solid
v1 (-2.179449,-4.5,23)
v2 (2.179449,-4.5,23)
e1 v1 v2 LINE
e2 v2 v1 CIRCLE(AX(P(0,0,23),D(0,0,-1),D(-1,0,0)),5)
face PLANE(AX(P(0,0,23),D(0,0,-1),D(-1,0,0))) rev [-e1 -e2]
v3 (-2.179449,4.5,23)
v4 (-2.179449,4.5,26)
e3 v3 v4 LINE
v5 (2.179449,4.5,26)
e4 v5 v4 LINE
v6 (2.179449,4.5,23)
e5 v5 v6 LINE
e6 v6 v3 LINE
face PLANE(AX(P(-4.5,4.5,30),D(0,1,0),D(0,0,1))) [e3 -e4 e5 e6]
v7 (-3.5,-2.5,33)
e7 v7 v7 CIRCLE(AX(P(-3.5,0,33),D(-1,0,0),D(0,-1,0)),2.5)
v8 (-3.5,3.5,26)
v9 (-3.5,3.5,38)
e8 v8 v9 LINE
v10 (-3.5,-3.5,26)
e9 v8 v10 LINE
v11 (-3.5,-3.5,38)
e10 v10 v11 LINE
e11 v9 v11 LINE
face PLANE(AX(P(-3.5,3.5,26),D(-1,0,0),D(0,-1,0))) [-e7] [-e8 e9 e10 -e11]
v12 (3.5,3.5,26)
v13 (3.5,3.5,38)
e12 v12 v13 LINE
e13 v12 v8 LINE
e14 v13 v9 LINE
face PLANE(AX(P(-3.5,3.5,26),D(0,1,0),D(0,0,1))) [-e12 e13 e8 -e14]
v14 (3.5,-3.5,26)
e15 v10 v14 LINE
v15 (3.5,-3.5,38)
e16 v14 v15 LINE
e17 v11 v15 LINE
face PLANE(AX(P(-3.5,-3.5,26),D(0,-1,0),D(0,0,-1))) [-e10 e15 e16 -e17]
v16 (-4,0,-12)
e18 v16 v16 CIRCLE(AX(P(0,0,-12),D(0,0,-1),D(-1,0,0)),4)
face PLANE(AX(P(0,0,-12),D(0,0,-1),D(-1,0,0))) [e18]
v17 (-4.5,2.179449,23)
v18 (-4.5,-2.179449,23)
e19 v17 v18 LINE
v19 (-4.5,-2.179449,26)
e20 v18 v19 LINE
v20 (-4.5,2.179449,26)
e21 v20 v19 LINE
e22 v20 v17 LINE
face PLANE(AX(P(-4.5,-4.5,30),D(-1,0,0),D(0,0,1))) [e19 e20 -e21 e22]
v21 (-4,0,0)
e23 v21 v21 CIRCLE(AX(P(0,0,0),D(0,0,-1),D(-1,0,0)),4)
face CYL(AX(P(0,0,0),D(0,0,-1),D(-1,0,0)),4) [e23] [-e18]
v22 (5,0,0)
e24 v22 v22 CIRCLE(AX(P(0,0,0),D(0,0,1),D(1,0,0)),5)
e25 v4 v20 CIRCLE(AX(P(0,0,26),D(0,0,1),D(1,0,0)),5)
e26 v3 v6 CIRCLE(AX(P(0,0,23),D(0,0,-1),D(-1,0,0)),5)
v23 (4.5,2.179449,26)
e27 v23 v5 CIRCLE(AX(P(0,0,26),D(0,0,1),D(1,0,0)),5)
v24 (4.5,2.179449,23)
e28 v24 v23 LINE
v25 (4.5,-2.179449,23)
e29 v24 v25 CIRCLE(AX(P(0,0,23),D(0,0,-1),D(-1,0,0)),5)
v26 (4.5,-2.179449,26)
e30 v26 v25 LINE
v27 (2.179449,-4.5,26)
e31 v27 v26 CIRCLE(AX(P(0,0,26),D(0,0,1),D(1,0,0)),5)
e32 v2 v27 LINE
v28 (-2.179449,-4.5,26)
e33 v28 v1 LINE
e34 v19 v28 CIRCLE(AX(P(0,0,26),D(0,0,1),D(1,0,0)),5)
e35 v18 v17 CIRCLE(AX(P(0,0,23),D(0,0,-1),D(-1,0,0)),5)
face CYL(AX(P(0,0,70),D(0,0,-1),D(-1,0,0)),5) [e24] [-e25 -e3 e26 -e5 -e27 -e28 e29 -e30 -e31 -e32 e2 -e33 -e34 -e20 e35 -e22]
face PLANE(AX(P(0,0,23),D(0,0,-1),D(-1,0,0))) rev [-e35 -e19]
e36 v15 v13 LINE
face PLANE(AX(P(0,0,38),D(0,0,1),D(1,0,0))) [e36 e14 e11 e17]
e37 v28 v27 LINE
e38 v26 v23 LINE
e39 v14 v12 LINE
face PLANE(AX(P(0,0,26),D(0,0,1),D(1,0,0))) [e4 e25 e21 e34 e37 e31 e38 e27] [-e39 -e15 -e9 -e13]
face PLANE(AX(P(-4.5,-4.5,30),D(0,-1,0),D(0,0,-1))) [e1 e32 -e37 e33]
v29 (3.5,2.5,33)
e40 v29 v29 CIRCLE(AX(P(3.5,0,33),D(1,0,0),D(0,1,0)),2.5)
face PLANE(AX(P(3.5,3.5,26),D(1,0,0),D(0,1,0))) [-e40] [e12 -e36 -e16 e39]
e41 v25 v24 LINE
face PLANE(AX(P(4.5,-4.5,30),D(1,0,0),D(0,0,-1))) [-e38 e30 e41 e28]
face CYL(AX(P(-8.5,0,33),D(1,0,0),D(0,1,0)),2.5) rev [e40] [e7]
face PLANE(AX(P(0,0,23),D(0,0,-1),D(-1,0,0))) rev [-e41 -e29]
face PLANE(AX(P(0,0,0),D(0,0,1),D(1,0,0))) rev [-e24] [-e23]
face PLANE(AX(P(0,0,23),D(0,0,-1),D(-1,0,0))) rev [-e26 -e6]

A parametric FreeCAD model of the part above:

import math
import FreeCAD as App
import Part
import Sketcher
Q = App.Units.Quantity

doc = App.newDocument("Part")
params = doc.addObject("Spreadsheet::Sheet", "Params")
for row, (alias, value) in enumerate([
    ("sketch1_diameter", "10 mm"),
    ("pad1_length", "70 mm"),
    ("sketch2_diameter", "7 mm"),
    ("pad2_length", "12 mm"),
    ("sketch3_diameter", "30 mm"),
    ("pad3_length", "5 mm"),
    ("sketch4_diameter", "7 mm"),
    ("pad4_length", "12 mm"),
    ("sketch5_radius", "15 mm"),
    ("pocket1_length", "12 mm"),
    ("sketch6_diameter", "30 mm"),
    ("pocket2_length", "47 mm"),
    ("sketch7_width", "9 mm"),
    ("pad5_length", "5 mm"),
    ("sketch8_width", "10 mm"),
    ("sketch8_width2", "9 mm"),
    ("pocket3_length", "12 mm"),
    ("sketch9_width", "9 mm"),
    ("pad6_length", "7 mm"),
    ("sketch10_width", "9 mm"),
    ("pocket4_length", "4 mm"),
    ("sketch11_width", "9 mm"),
    ("pad7_length", "12 mm"),
    ("sketch12_width", "9 mm"),
    ("sketch12_width2", "7 mm"),
    ("pocket5_length", "12 mm"),
    ("sketch13_diameter", "5 mm"),
    ("pocket6_length", "12 mm"),
    ("sketch14_diameter", "8 mm"),
    ("pad8_length", "12 mm"),
], start=1):
    params.set(f"A{row}", alias)
    params.set(f"B{row}", "=" + value)
    params.setAlias(f"B{row}", alias)

body = doc.addObject("PartDesign::Body", "Body")

sketch1 = doc.addObject("Sketcher::SketchObject", "Sketch")
body.addObject(sketch1)
sketch1.AttachmentSupport = (doc.XY_Plane, [""])
sketch1.MapMode = "FlatFace"
sketch1.addGeometry(Part.Circle(App.Vector(0, 0, 0), App.Vector(0, 0, 1), 5), False)
sketch1.addConstraint(Sketcher.Constraint("Coincident", 0, 3, -1, 1))
sketch1.addConstraint(Sketcher.Constraint("Diameter", 0, Q("10 mm")))
sketch1.setExpression("Constraints[1]", "Params.sketch1_diameter")
pad1 = doc.addObject("PartDesign::Pad", "Pad")
body.addObject(pad1)
pad1.Profile = sketch1
pad1.setExpression("Length", "Params.pad1_length")

sketch2 = doc.addObject("Sketcher::SketchObject", "Sketch001")
body.addObject(sketch2)
sketch2.AttachmentSupport = (doc.XY_Plane, [""])
sketch2.MapMode = "FlatFace"
sketch2.addGeometry(Part.Circle(App.Vector(0, 0, 0), App.Vector(0, 0, 1), 3.5), False)
sketch2.addConstraint(Sketcher.Constraint("Coincident", 0, 3, -1, 1))
sketch2.addConstraint(Sketcher.Constraint("Diameter", 0, Q("7 mm")))
sketch2.setExpression("Constraints[1]", "Params.sketch2_diameter")
pad2 = doc.addObject("PartDesign::Pad", "Pad001")
body.addObject(pad2)
pad2.Profile = sketch2
pad2.setExpression("Length", "Params.pad2_length")
pad2.Reversed = True

sketch3 = doc.addObject("Sketcher::SketchObject", "Sketch002")
body.addObject(sketch3)
sketch3.AttachmentSupport = (doc.XY_Plane, [""])
sketch3.MapMode = "FlatFace"
sketch3.AttachmentOffset = App.Placement(App.Vector(0, 0, 70), App.Rotation())
sketch3.addGeometry(Part.Circle(App.Vector(0, 0, 0), App.Vector(0, 0, 1), 15), False)
sketch3.addConstraint(Sketcher.Constraint("Coincident", 0, 3, -1, 1))
sketch3.addConstraint(Sketcher.Constraint("Diameter", 0, Q("30 mm")))
sketch3.setExpression("Constraints[1]", "Params.sketch3_diameter")
pad3 = doc.addObject("PartDesign::Pad", "Pad002")
body.addObject(pad3)
pad3.Profile = sketch3
pad3.setExpression("Length", "Params.pad3_length")
pad3.Reversed = True

sketch4 = doc.addObject("Sketcher::SketchObject", "Sketch003")
body.addObject(sketch4)
sketch4.AttachmentSupport = (doc.XY_Plane, [""])
sketch4.MapMode = "FlatFace"
sketch4.AttachmentOffset = App.Placement(App.Vector(0, 0, 70), App.Rotation())
sketch4.addGeometry(Part.Circle(App.Vector(0, 0, 0), App.Vector(0, 0, 1), 3.5), False)
sketch4.addConstraint(Sketcher.Constraint("Coincident", 0, 3, -1, 1))
sketch4.addConstraint(Sketcher.Constraint("Diameter", 0, Q("7 mm")))
sketch4.setExpression("Constraints[1]", "Params.sketch4_diameter")
pad4 = doc.addObject("PartDesign::Pad", "Pad003")
body.addObject(pad4)
pad4.Profile = sketch4
pad4.setExpression("Length", "Params.pad4_length")

sketch5 = doc.addObject("Sketcher::SketchObject", "Sketch004")
body.addObject(sketch5)
sketch5.AttachmentSupport = (doc.XY_Plane, [""])
sketch5.MapMode = "FlatFace"
sketch5.AttachmentOffset = App.Placement(App.Vector(0, 0, 70), App.Rotation())
sketch5.addGeometry(Part.LineSegment(App.Vector(-6.263, 8.172, 0), App.Vector(-7.499, 12.991, 0)), False)
sketch5.addGeometry(Part.ArcOfCircle(Part.Circle(App.Vector(0, 0, 0), App.Vector(0, 0, 1), 15), math.radians(120), math.radians(134.93)), False)
sketch5.addGeometry(Part.LineSegment(App.Vector(-10.593, 10.62, 0), App.Vector(-6.263, 8.172, 0)), False)
sketch5.addGeometry(Part.LineSegment(App.Vector(-8.152, 6.27, 0), App.Vector(-10.606, 10.607, 0)), False)
sketch5.addGeometry(Part.ArcOfCircle(Part.Circle(App.Vector(0, 0, 0), App.Vector(0, 0, 1), 15), math.radians(135), math.radians(149.93)), False)
sketch5.addGeometry(Part.LineSegment(App.Vector(-12.981, 7.516, 0), App.Vector(-8.152, 6.27, 0)), False)
sketch5.addGeometry(Part.LineSegment(App.Vector(-9.5, 3.952, 0), App.Vector(-12.981, 7.516, 0)), False)
sketch5.addGeometry(Part.ArcOfCircle(Part.Circle(App.Vector(0, 0, 0), App.Vector(0, 0, 1), 15), math.radians(149.93), math.radians(164.89)), False)
sketch5.addGeometry(Part.LineSegment(App.Vector(-14.482, 3.909, 0), App.Vector(-9.5, 3.952, 0)), False)
sketch5.addGeometry(Part.LineSegment(App.Vector(-10.188, 1.356, 0), App.Vector(-14.486, 3.891, 0)), False)
sketch5.addGeometry(Part.ArcOfCircle(Part.Circle(App.Vector(0, 0, 0), App.Vector(0, 0, 1), 15), math.radians(164.96), math.radians(179.93)), False)
sketch5.addGeometry(Part.LineSegment(App.Vector(-15, 0.019, 0), App.Vector(-10.188, 1.356, 0)), False)
sketch5.addGeometry(Part.ArcOfCircle(Part.Circle(App.Vector(0, 0, 0), App.Vector(0, 0, 1), 15), math.radians(-179.93), math.radians(-164.96)), False)
sketch5.addGeometry(Part.LineSegment(App.Vector(-14.486, -3.891, 0), App.Vector(-10.188, -1.356, 0)), False)
sketch5.addGeometry(Part.LineSegment(App.Vector(-10.188, -1.356, 0), App.Vector(-15, -0.019, 0)), False)
sketch5.addGeometry(Part.LineSegment(App.Vector(-9.5, -3.952, 0), App.Vector(-14.482, -3.909, 0)), False)
sketch5.addGeometry(Part.ArcOfCircle(Part.Circle(App.Vector(0, 0, 0), App.Vector(0, 0, 1), 15), math.radians(-164.89), math.radians(-149.93)), False)
sketch5.addGeometry(Part.LineSegment(App.Vector(-12.981, -7.516, 0), App.Vector(-9.5, -3.952, 0)), False)
sketch5.addGeometry(Part.LineSegment(App.Vector(-8.152, -6.27, 0), App.Vector(-12.981, -7.516, 0)), False)
sketch5.addGeometry(Part.ArcOfCircle(Part.Circle(App.Vector(0, 0, 0), App.Vector(0, 0, 1), 15), math.radians(-149.93), math.radians(-135)), False)
sketch5.addGeometry(Part.LineSegment(App.Vector(-10.606, -10.607, 0), App.Vector(-8.152, -6.27, 0)), False)
sketch5.addGeometry(Part.LineSegment(App.Vector(-6.263, -8.172, 0), App.Vector(-10.593, -10.62, 0)), False)
sketch5.addGeometry(Part.ArcOfCircle(Part.Circle(App.Vector(0, 0, 0), App.Vector(0, 0, 1), 15), math.radians(-134.93), math.radians(-120)), False)
sketch5.addGeometry(Part.LineSegment(App.Vector(-7.499, -12.991, 0), App.Vector(-6.263, -8.172, 0)), False)
sketch5.addGeometry(Part.LineSegment(App.Vector(-3.94, -9.505, 0), App.Vector(-7.499, -12.991, 0)), False)
sketch5.addGeometry(Part.ArcOfCircle(Part.Circle(App.Vector(0, 0, 0), App.Vector(0, 0, 1), 15), math.radians(-120), math.radians(-105.03)), False)
sketch5.addGeometry(Part.LineSegment(App.Vector(-3.891, -14.487, 0), App.Vector(-3.94, -9.505, 0)), False)
sketch5.addGeometry(Part.LineSegment(App.Vector(-1.344, -10.19, 0), App.Vector(-3.873, -14.491, 0)), False)
sketch5.addGeometry(Part.ArcOfCircle(Part.Circle(App.Vector(0, 0, 0), App.Vector(0, 0, 1), 15), math.radians(-104.96), math.radians(-90)), False)
sketch5.addGeometry(Part.LineSegment(App.Vector(0, -15, 0), App.Vector(-1.344, -10.19, 0)), False)
sketch5.addGeometry(Part.ArcOfCircle(Part.Circle(App.Vector(0, 0, 0), App.Vector(0, 0, 1), 15), math.radians(-90), math.radians(-75.04)), False)
sketch5.addGeometry(Part.LineSegment(App.Vector(3.873, -14.491, 0), App.Vector(1.344, -10.19, 0)), False)
sketch5.addGeometry(Part.LineSegment(App.Vector(1.344, -10.19, 0), App.Vector(0, -15, 0)), False)
sketch5.addGeometry(Part.ArcOfCircle(Part.Circle(App.Vector(0, 0, 0), App.Vector(0, 0, 1), 15), math.radians(-74.97), math.radians(-60)), False)
sketch5.addGeometry(Part.LineSegment(App.Vector(7.499, -12.991, 0), App.Vector(3.94, -9.505, 0)), False)
sketch5.addGeometry(Part.LineSegment(App.Vector(3.94, -9.505, 0), App.Vector(3.891, -14.487, 0)), False)
sketch5.addGeometry(Part.ArcOfCircle(Part.Circle(App.Vector(0, 0, 0), App.Vector(0, 0, 1), 15), math.radians(-60), math.radians(-45.07)), False)
sketch5.addGeometry(Part.LineSegment(App.Vector(10.593, -10.62, 0), App.Vector(6.263, -8.172, 0)), False)
sketch5.addGeometry(Part.LineSegment(App.Vector(6.263, -8.172, 0), App.Vector(7.499, -12.991, 0)), False)
sketch5.addGeometry(Part.ArcOfCircle(Part.Circle(App.Vector(0, 0, 0), App.Vector(0, 0, 1), 15), math.radians(-45), math.radians(-30.07)), False)
sketch5.addGeometry(Part.LineSegment(App.Vector(12.981, -7.516, 0), App.Vector(8.152, -6.27, 0)), False)
sketch5.addGeometry(Part.LineSegment(App.Vector(8.152, -6.27, 0), App.Vector(10.606, -10.607, 0)), False)
sketch5.addGeometry(Part.ArcOfCircle(Part.Circle(App.Vector(0, 0, 0), App.Vector(0, 0, 1), 15), math.radians(-30.07), math.radians(-15.11)), False)
sketch5.addGeometry(Part.LineSegment(App.Vector(14.482, -3.909, 0), App.Vector(9.5, -3.952, 0)), False)
sketch5.addGeometry(Part.LineSegment(App.Vector(9.5, -3.952, 0), App.Vector(12.981, -7.516, 0)), False)
sketch5.addGeometry(Part.ArcOfCircle(Part.Circle(App.Vector(-0.001, 0, 0), App.Vector(0, 0, 1), 15.001), math.radians(0), math.radians(0.07)), False)
sketch5.addGeometry(Part.LineSegment(App.Vector(15, 0.019, 0), App.Vector(10.159, -1.34, 0)), False)
sketch5.addGeometry(Part.LineSegment(App.Vector(10.159, -1.34, 0), App.Vector(14.486, -3.891, 0)), False)
sketch5.addGeometry(Part.ArcOfCircle(Part.Circle(App.Vector(0, 0, 0), App.Vector(0, 0, 1), 15), math.radians(-15.04), math.radians(0)), False)
sketch5.addGeometry(Part.ArcOfCircle(Part.Circle(App.Vector(0, 0, 0), App.Vector(0, 0, 1), 15), math.radians(0.07), math.radians(15.04)), False)
sketch5.addGeometry(Part.LineSegment(App.Vector(14.486, 3.891, 0), App.Vector(10.188, 1.356, 0)), False)
sketch5.addGeometry(Part.LineSegment(App.Vector(10.188, 1.356, 0), App.Vector(15, 0.019, 0)), False)
sketch5.addGeometry(Part.ArcOfCircle(Part.Circle(App.Vector(0, 0, 0), App.Vector(0, 0, 1), 15), math.radians(15.11), math.radians(30.07)), False)
sketch5.addGeometry(Part.LineSegment(App.Vector(12.981, 7.516, 0), App.Vector(9.5, 3.952, 0)), False)
sketch5.addGeometry(Part.LineSegment(App.Vector(9.5, 3.952, 0), App.Vector(14.482, 3.909, 0)), False)
sketch5.addGeometry(Part.ArcOfCircle(Part.Circle(App.Vector(0, 0, 0), App.Vector(0, 0, 1), 15), math.radians(30.07), math.radians(45)), False)
sketch5.addGeometry(Part.LineSegment(App.Vector(10.606, 10.607, 0), App.Vector(8.152, 6.27, 0)), False)
sketch5.addGeometry(Part.LineSegment(App.Vector(8.152, 6.27, 0), App.Vector(12.981, 7.516, 0)), False)
sketch5.addGeometry(Part.ArcOfCircle(Part.Circle(App.Vector(0, 0, 0), App.Vector(0, 0, 1), 15), math.radians(45.07), math.radians(60)), False)
sketch5.addGeometry(Part.LineSegment(App.Vector(7.499, 12.991, 0), App.Vector(6.263, 8.172, 0)), False)
sketch5.addGeometry(Part.LineSegment(App.Vector(6.263, 8.172, 0), App.Vector(10.593, 10.62, 0)), False)
sketch5.addGeometry(Part.ArcOfCircle(Part.Circle(App.Vector(0, 0, 0), App.Vector(0, 0, 1), 15), math.radians(60), math.radians(74.97)), False)
sketch5.addGeometry(Part.LineSegment(App.Vector(3.891, 14.487, 0), App.Vector(3.94, 9.505, 0)), False)
sketch5.addGeometry(Part.LineSegment(App.Vector(3.94, 9.505, 0), App.Vector(7.499, 12.991, 0)), False)
sketch5.addGeometry(Part.ArcOfCircle(Part.Circle(App.Vector(0, 0, 0), App.Vector(0, 0, 1), 15), math.radians(75.04), math.radians(90)), False)
sketch5.addGeometry(Part.LineSegment(App.Vector(0, 15, 0), App.Vector(1.344, 10.19, 0)), False)
sketch5.addGeometry(Part.LineSegment(App.Vector(1.344, 10.19, 0), App.Vector(3.873, 14.491, 0)), False)
sketch5.addGeometry(Part.LineSegment(App.Vector(-1.344, 10.19, 0), App.Vector(0, 15, 0)), False)
sketch5.addGeometry(Part.ArcOfCircle(Part.Circle(App.Vector(0, 0, 0), App.Vector(0, 0, 1), 15), math.radians(90), math.radians(104.96)), False)
sketch5.addGeometry(Part.LineSegment(App.Vector(-3.873, 14.491, 0), App.Vector(-1.344, 10.19, 0)), False)
sketch5.addGeometry(Part.LineSegment(App.Vector(-3.94, 9.505, 0), App.Vector(-3.891, 14.487, 0)), False)
sketch5.addGeometry(Part.ArcOfCircle(Part.Circle(App.Vector(0, 0, 0), App.Vector(0, 0, 1), 15), math.radians(105.03), math.radians(120)), False)
sketch5.addGeometry(Part.LineSegment(App.Vector(-7.499, 12.991, 0), App.Vector(-3.94, 9.505, 0)), False)
sketch5.addConstraint(Sketcher.Constraint("Coincident", 0, 2, 1, 1))
sketch5.addConstraint(Sketcher.Constraint("Coincident", 1, 2, 2, 1))
sketch5.addConstraint(Sketcher.Constraint("Coincident", 2, 2, 0, 1))
sketch5.addConstraint(Sketcher.Constraint("Coincident", 3, 2, 4, 1))
sketch5.addConstraint(Sketcher.Constraint("Coincident", 4, 2, 5, 1))
sketch5.addConstraint(Sketcher.Constraint("Coincident", 5, 2, 3, 1))
sketch5.addConstraint(Sketcher.Constraint("Coincident", 6, 2, 7, 1))
sketch5.addConstraint(Sketcher.Constraint("Coincident", 7, 2, 8, 1))
sketch5.addConstraint(Sketcher.Constraint("Coincident", 8, 2, 6, 1))
sketch5.addConstraint(Sketcher.Constraint("Coincident", 9, 2, 10, 1))
sketch5.addConstraint(Sketcher.Constraint("Coincident", 10, 2, 11, 1))
sketch5.addConstraint(Sketcher.Constraint("Coincident", 11, 2, 9, 1))
sketch5.addConstraint(Sketcher.Constraint("Coincident", 12, 2, 13, 1))
sketch5.addConstraint(Sketcher.Constraint("Coincident", 13, 2, 14, 1))
sketch5.addConstraint(Sketcher.Constraint("Coincident", 14, 2, 12, 1))
sketch5.addConstraint(Sketcher.Constraint("Coincident", 15, 2, 16, 1))
sketch5.addConstraint(Sketcher.Constraint("Coincident", 16, 2, 17, 1))
sketch5.addConstraint(Sketcher.Constraint("Coincident", 17, 2, 15, 1))
sketch5.addConstraint(Sketcher.Constraint("Coincident", 18, 2, 19, 1))
sketch5.addConstraint(Sketcher.Constraint("Coincident", 19, 2, 20, 1))
sketch5.addConstraint(Sketcher.Constraint("Coincident", 20, 2, 18, 1))
sketch5.addConstraint(Sketcher.Constraint("Coincident", 21, 2, 22, 1))
sketch5.addConstraint(Sketcher.Constraint("Coincident", 22, 2, 23, 1))
sketch5.addConstraint(Sketcher.Constraint("Coincident", 23, 2, 21, 1))
sketch5.addConstraint(Sketcher.Constraint("Coincident", 24, 2, 25, 1))
sketch5.addConstraint(Sketcher.Constraint("Coincident", 25, 2, 26, 1))
sketch5.addConstraint(Sketcher.Constraint("Coincident", 26, 2, 24, 1))
sketch5.addConstraint(Sketcher.Constraint("Coincident", 27, 2, 28, 1))
sketch5.addConstraint(Sketcher.Constraint("Coincident", 28, 2, 29, 1))
sketch5.addConstraint(Sketcher.Constraint("Coincident", 29, 2, 27, 1))
sketch5.addConstraint(Sketcher.Constraint("Coincident", 30, 2, 31, 1))
sketch5.addConstraint(Sketcher.Constraint("Coincident", 31, 2, 32, 1))
sketch5.addConstraint(Sketcher.Constraint("Coincident", 32, 2, 30, 1))
sketch5.addConstraint(Sketcher.Constraint("Coincident", 33, 2, 34, 1))
sketch5.addConstraint(Sketcher.Constraint("Coincident", 34, 2, 35, 1))
sketch5.addConstraint(Sketcher.Constraint("Coincident", 35, 2, 33, 1))
sketch5.addConstraint(Sketcher.Constraint("Coincident", 36, 2, 37, 1))
sketch5.addConstraint(Sketcher.Constraint("Coincident", 37, 2, 38, 1))
sketch5.addConstraint(Sketcher.Constraint("Coincident", 38, 2, 36, 1))
sketch5.addConstraint(Sketcher.Constraint("Coincident", 39, 2, 40, 1))
sketch5.addConstraint(Sketcher.Constraint("Coincident", 40, 2, 41, 1))
sketch5.addConstraint(Sketcher.Constraint("Coincident", 41, 2, 39, 1))
sketch5.addConstraint(Sketcher.Constraint("Coincident", 42, 2, 43, 1))
sketch5.addConstraint(Sketcher.Constraint("Coincident", 43, 2, 44, 1))
sketch5.addConstraint(Sketcher.Constraint("Coincident", 44, 2, 42, 1))
sketch5.addConstraint(Sketcher.Constraint("Coincident", 45, 2, 46, 1))
sketch5.addConstraint(Sketcher.Constraint("Coincident", 46, 2, 47, 1))
sketch5.addConstraint(Sketcher.Constraint("Coincident", 47, 2, 48, 1))
sketch5.addConstraint(Sketcher.Constraint("Tangent", 48, 2, 45, 1))
sketch5.addConstraint(Sketcher.Constraint("Coincident", 49, 2, 50, 1))
sketch5.addConstraint(Sketcher.Constraint("Coincident", 50, 2, 51, 1))
sketch5.addConstraint(Sketcher.Constraint("Coincident", 51, 2, 49, 1))
sketch5.addConstraint(Sketcher.Constraint("Coincident", 52, 2, 53, 1))
sketch5.addConstraint(Sketcher.Constraint("Coincident", 53, 2, 54, 1))
sketch5.addConstraint(Sketcher.Constraint("Coincident", 54, 2, 52, 1))
sketch5.addConstraint(Sketcher.Constraint("Coincident", 55, 2, 56, 1))
sketch5.addConstraint(Sketcher.Constraint("Coincident", 56, 2, 57, 1))
sketch5.addConstraint(Sketcher.Constraint("Coincident", 57, 2, 55, 1))
sketch5.addConstraint(Sketcher.Constraint("Coincident", 58, 2, 59, 1))
sketch5.addConstraint(Sketcher.Constraint("Coincident", 59, 2, 60, 1))
sketch5.addConstraint(Sketcher.Constraint("Coincident", 60, 2, 58, 1))
sketch5.addConstraint(Sketcher.Constraint("Coincident", 61, 2, 62, 1))
sketch5.addConstraint(Sketcher.Constraint("Coincident", 62, 2, 63, 1))
sketch5.addConstraint(Sketcher.Constraint("Coincident", 63, 2, 61, 1))
sketch5.addConstraint(Sketcher.Constraint("Coincident", 64, 2, 65, 1))
sketch5.addConstraint(Sketcher.Constraint("Coincident", 65, 2, 66, 1))
sketch5.addConstraint(Sketcher.Constraint("Coincident", 66, 2, 64, 1))
sketch5.addConstraint(Sketcher.Constraint("Coincident", 67, 2, 68, 1))
sketch5.addConstraint(Sketcher.Constraint("Coincident", 68, 2, 69, 1))
sketch5.addConstraint(Sketcher.Constraint("Coincident", 69, 2, 67, 1))
sketch5.addConstraint(Sketcher.Constraint("Coincident", 70, 2, 71, 1))
sketch5.addConstraint(Sketcher.Constraint("Coincident", 71, 2, 72, 1))
sketch5.addConstraint(Sketcher.Constraint("Coincident", 72, 2, 70, 1))
sketch5.addConstraint(Sketcher.Constraint("Coincident", 1, 3, -1, 1))
sketch5.addConstraint(Sketcher.Constraint("Coincident", 4, 3, -1, 1))
sketch5.addConstraint(Sketcher.Constraint("Coincident", 7, 3, -1, 1))
sketch5.addConstraint(Sketcher.Constraint("Coincident", 10, 3, -1, 1))
sketch5.addConstraint(Sketcher.Constraint("Coincident", 12, 3, -1, 1))
sketch5.addConstraint(Sketcher.Constraint("Coincident", 16, 3, -1, 1))
sketch5.addConstraint(Sketcher.Constraint("Coincident", 19, 3, -1, 1))
sketch5.addConstraint(Sketcher.Constraint("Coincident", 22, 3, -1, 1))
sketch5.addConstraint(Sketcher.Constraint("Coincident", 25, 3, -1, 1))
sketch5.addConstraint(Sketcher.Constraint("Coincident", 28, 3, -1, 1))
sketch5.addConstraint(Sketcher.Constraint("Coincident", 30, 3, -1, 1))
sketch5.addConstraint(Sketcher.Constraint("Coincident", 33, 3, -1, 1))
sketch5.addConstraint(Sketcher.Constraint("Coincident", 36, 3, -1, 1))
sketch5.addConstraint(Sketcher.Constraint("Coincident", 39, 3, -1, 1))
sketch5.addConstraint(Sketcher.Constraint("Coincident", 42, 3, -1, 1))
sketch5.addConstraint(Sketcher.Constraint("Coincident", 48, 3, -1, 1))
sketch5.addConstraint(Sketcher.Constraint("Coincident", 49, 3, -1, 1))
sketch5.addConstraint(Sketcher.Constraint("Coincident", 52, 3, -1, 1))
sketch5.addConstraint(Sketcher.Constraint("Coincident", 55, 3, -1, 1))
sketch5.addConstraint(Sketcher.Constraint("Coincident", 58, 3, -1, 1))
sketch5.addConstraint(Sketcher.Constraint("Coincident", 61, 3, -1, 1))
sketch5.addConstraint(Sketcher.Constraint("Coincident", 64, 3, -1, 1))
sketch5.addConstraint(Sketcher.Constraint("Coincident", 68, 3, -1, 1))
sketch5.addConstraint(Sketcher.Constraint("Coincident", 71, 3, -1, 1))
sketch5.addConstraint(Sketcher.Constraint("Coincident", 6, 2, 4, 2))
sketch5.addConstraint(Sketcher.Constraint("Coincident", 18, 2, 16, 2))
sketch5.addConstraint(Sketcher.Constraint("Coincident", 24, 2, 22, 2))
sketch5.addConstraint(Sketcher.Constraint("Coincident", 32, 2, 28, 2))
sketch5.addConstraint(Sketcher.Constraint("Coincident", 38, 2, 33, 2))
sketch5.addConstraint(Sketcher.Constraint("Coincident", 44, 2, 39, 2))
sketch5.addConstraint(Sketcher.Constraint("Coincident", 51, 2, 45, 2))
sketch5.addConstraint(Sketcher.Constraint("Coincident", 57, 2, 52, 2))
sketch5.addConstraint(Sketcher.Constraint("Coincident", 63, 2, 58, 2))
sketch5.addConstraint(Sketcher.Constraint("Coincident", 67, 2, 64, 2))
sketch5.addConstraint(Sketcher.Constraint("Coincident", 71, 2, 0, 2))
sketch5.addConstraint(Sketcher.Constraint("Equal", 1, 4))
sketch5.addConstraint(Sketcher.Constraint("Equal", 7, 10))
sketch5.addConstraint(Sketcher.Constraint("Equal", 10, 12))
sketch5.addConstraint(Sketcher.Constraint("Equal", 12, 16))
sketch5.addConstraint(Sketcher.Constraint("Equal", 19, 22))
sketch5.addConstraint(Sketcher.Constraint("Equal", 25, 28))
sketch5.addConstraint(Sketcher.Constraint("Equal", 30, 33))
sketch5.addConstraint(Sketcher.Constraint("Equal", 36, 39))
sketch5.addConstraint(Sketcher.Constraint("Equal", 42, 48))
sketch5.addConstraint(Sketcher.Constraint("Equal", 49, 52))
sketch5.addConstraint(Sketcher.Constraint("Equal", 55, 58))
sketch5.addConstraint(Sketcher.Constraint("Equal", 61, 64))
sketch5.addConstraint(Sketcher.Constraint("Symmetric", 2, 2, 37, 2, -1, 1))
sketch5.addConstraint(Sketcher.Constraint("Symmetric", 5, 2, 40, 2, -1, 1))
sketch5.addConstraint(Sketcher.Constraint("Symmetric", 8, 2, 43, 2, -1, 1))
sketch5.addConstraint(Sketcher.Constraint("Symmetric", 13, 2, 50, 2, -1, 1))
sketch5.addConstraint(Sketcher.Constraint("Symmetric", 17, 2, 53, 2, -1, 1))
sketch5.addConstraint(Sketcher.Constraint("Symmetric", 20, 2, 56, 2, -1, 1))
sketch5.addConstraint(Sketcher.Constraint("Symmetric", 23, 2, 59, 2, -1, 1))
sketch5.addConstraint(Sketcher.Constraint("Symmetric", 26, 2, 62, 2, -1, 1))
sketch5.addConstraint(Sketcher.Constraint("Symmetric", 29, 2, 65, 2, -1, 1))
sketch5.addConstraint(Sketcher.Constraint("Symmetric", 31, 2, 69, 2, -1, 1))
sketch5.addConstraint(Sketcher.Constraint("Symmetric", 34, 2, 72, 2, -1, 1))
sketch5.addConstraint(Sketcher.Constraint("Symmetric", 29, 2, 31, 2, -2))
sketch5.addConstraint(Sketcher.Constraint("Symmetric", 26, 2, 34, 2, -2))
sketch5.addConstraint(Sketcher.Constraint("Symmetric", 23, 2, 37, 2, -2))
sketch5.addConstraint(Sketcher.Constraint("Symmetric", 20, 2, 40, 2, -2))
sketch5.addConstraint(Sketcher.Constraint("Symmetric", 17, 2, 43, 2, -2))
sketch5.addConstraint(Sketcher.Constraint("Symmetric", 11, 2, 50, 2, -2))
sketch5.addConstraint(Sketcher.Constraint("PointOnObject", 28, 2, -2))
sketch5.addConstraint(Sketcher.Constraint("PointOnObject", 48, 2, -1))
sketch5.addConstraint(Sketcher.Constraint("PointOnObject", 64, 2, -2))
sketch5.addConstraint(Sketcher.Constraint("Parallel", 2, 37))
sketch5.addConstraint(Sketcher.Constraint("Parallel", 0, 38))
sketch5.addConstraint(Sketcher.Constraint("Parallel", 5, 40))
sketch5.addConstraint(Sketcher.Constraint("Parallel", 3, 41))
sketch5.addConstraint(Sketcher.Constraint("Parallel", 8, 43))
sketch5.addConstraint(Sketcher.Constraint("Parallel", 9, 47))
sketch5.addConstraint(Sketcher.Constraint("Parallel", 13, 50))
sketch5.addConstraint(Sketcher.Constraint("Parallel", 14, 51))
sketch5.addConstraint(Sketcher.Constraint("Parallel", 17, 53))
sketch5.addConstraint(Sketcher.Constraint("Parallel", 15, 54))
sketch5.addConstraint(Sketcher.Constraint("Parallel", 20, 56))
sketch5.addConstraint(Sketcher.Constraint("Parallel", 23, 59))
sketch5.addConstraint(Sketcher.Constraint("Parallel", 21, 60))
sketch5.addConstraint(Sketcher.Constraint("Parallel", 26, 62))
sketch5.addConstraint(Sketcher.Constraint("Parallel", 27, 66))
sketch5.addConstraint(Sketcher.Constraint("Parallel", 31, 69))
sketch5.addConstraint(Sketcher.Constraint("Parallel", 35, 70))
sketch5.addConstraint(Sketcher.Constraint("Horizontal", 27, 2, 30, 2))
sketch5.addConstraint(Sketcher.Constraint("Horizontal", 24, 2, 33, 2))
sketch5.addConstraint(Sketcher.Constraint("Horizontal", 25, 2, 35, 2))
sketch5.addConstraint(Sketcher.Constraint("Horizontal", 21, 2, 36, 2))
sketch5.addConstraint(Sketcher.Constraint("Horizontal", 18, 2, 39, 2))
sketch5.addConstraint(Sketcher.Constraint("Horizontal", 19, 2, 41, 2))
sketch5.addConstraint(Sketcher.Constraint("Horizontal", 15, 2, 42, 2))
sketch5.addConstraint(Sketcher.Constraint("Horizontal", 10, 2, 45, 2))
sketch5.addConstraint(Sketcher.Constraint("Horizontal", 12, 2, 47, 2))
sketch5.addConstraint(Sketcher.Constraint("Horizontal", 9, 2, 49, 2))
sketch5.addConstraint(Sketcher.Constraint("Equal", 17, 24))
sketch5.addConstraint(Sketcher.Constraint("Equal", 15, 26))
sketch5.addConstraint(Sketcher.Constraint("Equal", 13, 27))
sketch5.addConstraint(Sketcher.Constraint("Equal", 14, 29))
sketch5.addConstraint(Sketcher.Constraint("Radius", 1, Q("15 mm")))
sketch5.addConstraint(Sketcher.Constraint("Radius", 45, Q("15.000849 mm")))
sketch5.addConstraint(Sketcher.Constraint("DistanceY", -1, 1, 9, 2, Q("3.891401 mm")))
sketch5.addConstraint(Sketcher.Constraint("DistanceX", 29, 2, -1, 1, Q("1.343501 mm")))
sketch5.addConstraint(Sketcher.Constraint("Distance", 6, Q("4.982259 mm")))
sketch5.addConstraint(Sketcher.Constraint("Distance", 8, Q("4.981819 mm")))
sketch5.addConstraint(Sketcher.Constraint("Distance", 9, Q("4.990219 mm")))
sketch5.addConstraint(Sketcher.Constraint("Distance", 11, Q("4.994352 mm")))
sketch5.addConstraint(Sketcher.Constraint("Distance", 47, Q("5.02351 mm")))
sketch5.addConstraint(Sketcher.Constraint("DistanceX", 1, 2, -1, 1, Q("10.593219 mm")))
sketch5.addConstraint(Sketcher.Constraint("DistanceY", -1, 1, 3, 2, Q("10.606761 mm")))
sketch5.addConstraint(Sketcher.Constraint("DistanceX", 4, 2, -1, 1, Q("12.981159 mm")))
sketch5.addConstraint(Sketcher.Constraint("DistanceY", -1, 1, 8, 2, Q("3.951679 mm")))
sketch5.addConstraint(Sketcher.Constraint("DistanceX", 11, 2, -1, 1, Q("10.188028 mm")))
sketch5.addConstraint(Sketcher.Constraint("DistanceY", 26, 2, -1, 1, Q("9.50496 mm")))
sketch5.addConstraint(Sketcher.Constraint("Distance", 0, Q("4.974764 mm")))
sketch5.addConstraint(Sketcher.Constraint("Distance", 2, Q("4.974325 mm")))
sketch5.addConstraint(Sketcher.Constraint("Distance", 3, Q("4.982723 mm")))
sketch5.addConstraint(Sketcher.Constraint("Distance", 5, Q("4.986846 mm")))
sketch5.addConstraint(Sketcher.Constraint("DistanceX", 0, 2, -1, 1, Q("7.499435 mm")))
sketch5.setExpression("Constraints[171]", "Params.sketch5_radius")
pocket1 = doc.addObject("PartDesign::Pocket", "Pocket")
body.addObject(pocket1)
pocket1.Profile = sketch5
pocket1.setExpression("Length", "Params.pocket1_length")

sketch6 = doc.addObject("Sketcher::SketchObject", "Sketch005")
body.addObject(sketch6)
sketch6.AttachmentSupport = (doc.XY_Plane, [""])
sketch6.MapMode = "FlatFace"
sketch6.AttachmentOffset = App.Placement(App.Vector(0, 0, 82), App.Rotation())
sketch6.addGeometry(Part.Circle(App.Vector(0, 0, 0), App.Vector(0, 0, 1), 15), False)
sketch6.addConstraint(Sketcher.Constraint("Coincident", 0, 3, -1, 1))
sketch6.addConstraint(Sketcher.Constraint("Diameter", 0, Q("30 mm")))
sketch6.setExpression("Constraints[1]", "Params.sketch6_diameter")
pocket2 = doc.addObject("PartDesign::Pocket", "Pocket001")
body.addObject(pocket2)
pocket2.Profile = sketch6
pocket2.setExpression("Length", "Params.pocket2_length")

sketch7 = doc.addObject("Sketcher::SketchObject", "Sketch006")
body.addObject(sketch7)
sketch7.AttachmentSupport = (doc.XY_Plane, [""])
sketch7.MapMode = "FlatFace"
sketch7.AttachmentOffset = App.Placement(App.Vector(0, 0, 35), App.Rotation())
sketch7.addGeometry(Part.LineSegment(App.Vector(-4, 4, 0), App.Vector(-4, -4, 0)), False)
sketch7.addGeometry(Part.LineSegment(App.Vector(-4, -4, 0), App.Vector(4, -4, 0)), False)
sketch7.addGeometry(Part.LineSegment(App.Vector(4, -4, 0), App.Vector(4, 4, 0)), False)
sketch7.addGeometry(Part.LineSegment(App.Vector(4, 4, 0), App.Vector(-4, 4, 0)), False)
sketch7.addConstraint(Sketcher.Constraint("Coincident", 0, 2, 1, 1))
sketch7.addConstraint(Sketcher.Constraint("Coincident", 1, 2, 2, 1))
sketch7.addConstraint(Sketcher.Constraint("Coincident", 2, 2, 3, 1))
sketch7.addConstraint(Sketcher.Constraint("Coincident", 3, 2, 0, 1))
sketch7.addConstraint(Sketcher.Constraint("Vertical", 0))
sketch7.addConstraint(Sketcher.Constraint("Horizontal", 1))
sketch7.addConstraint(Sketcher.Constraint("Vertical", 2))
sketch7.addConstraint(Sketcher.Constraint("Horizontal", 3))
sketch7.addConstraint(Sketcher.Constraint("Symmetric", 0, 2, 2, 2, -1, 1))
sketch7.addConstraint(Sketcher.Constraint("Equal", 3, 0))
sketch7.addConstraint(Sketcher.Constraint("DistanceX", 1, 1, 1, 2, Q("9 mm")))
sketch7.setExpression("Constraints[10]", "Params.sketch7_width")
pad5 = doc.addObject("PartDesign::Pad", "Pad004")
body.addObject(pad5)
pad5.Profile = sketch7
pad5.setExpression("Length", "Params.pad5_length")
pad5.Reversed = True

sketch8 = doc.addObject("Sketcher::SketchObject", "Sketch007")
body.addObject(sketch8)
sketch8.AttachmentSupport = (doc.XY_Plane, [""])
sketch8.MapMode = "FlatFace"
sketch8.AttachmentOffset = App.Placement(App.Vector(0, 0, 35), App.Rotation())
sketch8.addGeometry(Part.LineSegment(App.Vector(-5, 5, 0), App.Vector(-5, -5, 0)), False)
sketch8.addGeometry(Part.LineSegment(App.Vector(-5, -5, 0), App.Vector(5, -5, 0)), False)
sketch8.addGeometry(Part.LineSegment(App.Vector(5, -5, 0), App.Vector(5, 5, 0)), False)
sketch8.addGeometry(Part.LineSegment(App.Vector(5, 5, 0), App.Vector(-5, 5, 0)), False)
sketch8.addGeometry(Part.LineSegment(App.Vector(4, -4, 0), App.Vector(-4, -4, 0)), False)
sketch8.addGeometry(Part.LineSegment(App.Vector(-4, -4, 0), App.Vector(-4, 4, 0)), False)
sketch8.addGeometry(Part.LineSegment(App.Vector(-4, 4, 0), App.Vector(4, 4, 0)), False)
sketch8.addGeometry(Part.LineSegment(App.Vector(4, 4, 0), App.Vector(4, -4, 0)), False)
sketch8.addConstraint(Sketcher.Constraint("Coincident", 0, 2, 1, 1))
sketch8.addConstraint(Sketcher.Constraint("Coincident", 1, 2, 2, 1))
sketch8.addConstraint(Sketcher.Constraint("Coincident", 2, 2, 3, 1))
sketch8.addConstraint(Sketcher.Constraint("Coincident", 3, 2, 0, 1))
sketch8.addConstraint(Sketcher.Constraint("Coincident", 4, 2, 5, 1))
sketch8.addConstraint(Sketcher.Constraint("Coincident", 5, 2, 6, 1))
sketch8.addConstraint(Sketcher.Constraint("Coincident", 6, 2, 7, 1))
sketch8.addConstraint(Sketcher.Constraint("Coincident", 7, 2, 4, 1))
sketch8.addConstraint(Sketcher.Constraint("Vertical", 0))
sketch8.addConstraint(Sketcher.Constraint("Horizontal", 1))
sketch8.addConstraint(Sketcher.Constraint("Vertical", 2))
sketch8.addConstraint(Sketcher.Constraint("Horizontal", 3))
sketch8.addConstraint(Sketcher.Constraint("Horizontal", 4))
sketch8.addConstraint(Sketcher.Constraint("Vertical", 5))
sketch8.addConstraint(Sketcher.Constraint("Horizontal", 6))
sketch8.addConstraint(Sketcher.Constraint("Vertical", 7))
sketch8.addConstraint(Sketcher.Constraint("Symmetric", 0, 2, 2, 2, -1, 1))
sketch8.addConstraint(Sketcher.Constraint("Symmetric", 4, 2, 6, 2, -1, 1))
sketch8.addConstraint(Sketcher.Constraint("Equal", 3, 0))
sketch8.addConstraint(Sketcher.Constraint("Equal", 6, 5))
sketch8.addConstraint(Sketcher.Constraint("DistanceX", 1, 1, 1, 2, Q("10 mm")))
sketch8.addConstraint(Sketcher.Constraint("DistanceX", 4, 2, 4, 1, Q("9 mm")))
sketch8.setExpression("Constraints[20]", "Params.sketch8_width")
sketch8.setExpression("Constraints[21]", "Params.sketch8_width2")
pocket3 = doc.addObject("PartDesign::Pocket", "Pocket002")
body.addObject(pocket3)
pocket3.Profile = sketch8
pocket3.setExpression("Length", "Params.pocket3_length")

sketch9 = doc.addObject("Sketcher::SketchObject", "Sketch008")
body.addObject(sketch9)
sketch9.AttachmentSupport = (doc.XY_Plane, [""])
sketch9.MapMode = "FlatFace"
sketch9.AttachmentOffset = App.Placement(App.Vector(0, 0, 35), App.Rotation())
sketch9.addGeometry(Part.LineSegment(App.Vector(-4, 4, 0), App.Vector(-4, -4, 0)), False)
sketch9.addGeometry(Part.LineSegment(App.Vector(-4, -4, 0), App.Vector(4, -4, 0)), False)
sketch9.addGeometry(Part.LineSegment(App.Vector(4, -4, 0), App.Vector(4, 4, 0)), False)
sketch9.addGeometry(Part.LineSegment(App.Vector(4, 4, 0), App.Vector(-4, 4, 0)), False)
sketch9.addConstraint(Sketcher.Constraint("Coincident", 0, 2, 1, 1))
sketch9.addConstraint(Sketcher.Constraint("Coincident", 1, 2, 2, 1))
sketch9.addConstraint(Sketcher.Constraint("Coincident", 2, 2, 3, 1))
sketch9.addConstraint(Sketcher.Constraint("Coincident", 3, 2, 0, 1))
sketch9.addConstraint(Sketcher.Constraint("Vertical", 0))
sketch9.addConstraint(Sketcher.Constraint("Horizontal", 1))
sketch9.addConstraint(Sketcher.Constraint("Vertical", 2))
sketch9.addConstraint(Sketcher.Constraint("Horizontal", 3))
sketch9.addConstraint(Sketcher.Constraint("Symmetric", 0, 2, 2, 2, -1, 1))
sketch9.addConstraint(Sketcher.Constraint("Equal", 3, 0))
sketch9.addConstraint(Sketcher.Constraint("DistanceX", 1, 1, 1, 2, Q("9 mm")))
sketch9.setExpression("Constraints[10]", "Params.sketch9_width")
pad6 = doc.addObject("PartDesign::Pad", "Pad005")
body.addObject(pad6)
pad6.Profile = sketch9
pad6.setExpression("Length", "Params.pad6_length")

sketch10 = doc.addObject("Sketcher::SketchObject", "Sketch009")
body.addObject(sketch10)
sketch10.AttachmentSupport = (doc.XY_Plane, [""])
sketch10.MapMode = "FlatFace"
sketch10.AttachmentOffset = App.Placement(App.Vector(0, 0, 42), App.Rotation())
sketch10.addGeometry(Part.LineSegment(App.Vector(-4, 4, 0), App.Vector(-4, -4, 0)), False)
sketch10.addGeometry(Part.LineSegment(App.Vector(-4, -4, 0), App.Vector(4, -4, 0)), False)
sketch10.addGeometry(Part.LineSegment(App.Vector(4, -4, 0), App.Vector(4, 4, 0)), False)
sketch10.addGeometry(Part.LineSegment(App.Vector(4, 4, 0), App.Vector(-4, 4, 0)), False)
sketch10.addConstraint(Sketcher.Constraint("Coincident", 0, 2, 1, 1))
sketch10.addConstraint(Sketcher.Constraint("Coincident", 1, 2, 2, 1))
sketch10.addConstraint(Sketcher.Constraint("Coincident", 2, 2, 3, 1))
sketch10.addConstraint(Sketcher.Constraint("Coincident", 3, 2, 0, 1))
sketch10.addConstraint(Sketcher.Constraint("Vertical", 0))
sketch10.addConstraint(Sketcher.Constraint("Horizontal", 1))
sketch10.addConstraint(Sketcher.Constraint("Vertical", 2))
sketch10.addConstraint(Sketcher.Constraint("Horizontal", 3))
sketch10.addConstraint(Sketcher.Constraint("Symmetric", 0, 2, 2, 2, -1, 1))
sketch10.addConstraint(Sketcher.Constraint("Equal", 3, 0))
sketch10.addConstraint(Sketcher.Constraint("DistanceX", 1, 1, 1, 2, Q("9 mm")))
sketch10.setExpression("Constraints[10]", "Params.sketch10_width")
pocket4 = doc.addObject("PartDesign::Pocket", "Pocket003")
body.addObject(pocket4)
pocket4.Profile = sketch10
pocket4.setExpression("Length", "Params.pocket4_length")

sketch11 = doc.addObject("Sketcher::SketchObject", "Sketch010")
body.addObject(sketch11)
sketch11.AttachmentSupport = (doc.XY_Plane, [""])
sketch11.MapMode = "FlatFace"
sketch11.AttachmentOffset = App.Placement(App.Vector(0, 0, 38), App.Rotation())
sketch11.addGeometry(Part.LineSegment(App.Vector(-4, 4, 0), App.Vector(-4, -4, 0)), False)
sketch11.addGeometry(Part.LineSegment(App.Vector(-4, -4, 0), App.Vector(4, -4, 0)), False)
sketch11.addGeometry(Part.LineSegment(App.Vector(4, -4, 0), App.Vector(4, 4, 0)), False)
sketch11.addGeometry(Part.LineSegment(App.Vector(4, 4, 0), App.Vector(-4, 4, 0)), False)
sketch11.addConstraint(Sketcher.Constraint("Coincident", 0, 2, 1, 1))
sketch11.addConstraint(Sketcher.Constraint("Coincident", 1, 2, 2, 1))
sketch11.addConstraint(Sketcher.Constraint("Coincident", 2, 2, 3, 1))
sketch11.addConstraint(Sketcher.Constraint("Coincident", 3, 2, 0, 1))
sketch11.addConstraint(Sketcher.Constraint("Vertical", 0))
sketch11.addConstraint(Sketcher.Constraint("Horizontal", 1))
sketch11.addConstraint(Sketcher.Constraint("Vertical", 2))
sketch11.addConstraint(Sketcher.Constraint("Horizontal", 3))
sketch11.addConstraint(Sketcher.Constraint("Symmetric", 0, 2, 2, 2, -1, 1))
sketch11.addConstraint(Sketcher.Constraint("Equal", 3, 0))
sketch11.addConstraint(Sketcher.Constraint("DistanceX", 1, 1, 1, 2, Q("9 mm")))
sketch11.setExpression("Constraints[10]", "Params.sketch11_width")
pad7 = doc.addObject("PartDesign::Pad", "Pad006")
body.addObject(pad7)
pad7.Profile = sketch11
pad7.setExpression("Length", "Params.pad7_length")
pad7.Reversed = True

sketch12 = doc.addObject("Sketcher::SketchObject", "Sketch011")
body.addObject(sketch12)
sketch12.AttachmentSupport = (doc.XY_Plane, [""])
sketch12.MapMode = "FlatFace"
sketch12.AttachmentOffset = App.Placement(App.Vector(0, 0, 38), App.Rotation())
sketch12.addGeometry(Part.LineSegment(App.Vector(-4, 4, 0), App.Vector(-4, -4, 0)), False)
sketch12.addGeometry(Part.LineSegment(App.Vector(-4, -4, 0), App.Vector(4, -4, 0)), False)
sketch12.addGeometry(Part.LineSegment(App.Vector(4, -4, 0), App.Vector(4, 4, 0)), False)
sketch12.addGeometry(Part.LineSegment(App.Vector(4, 4, 0), App.Vector(-4, 4, 0)), False)
sketch12.addGeometry(Part.LineSegment(App.Vector(4, -4, 0), App.Vector(-4, -4, 0)), False)
sketch12.addGeometry(Part.LineSegment(App.Vector(-4, -4, 0), App.Vector(-4, 4, 0)), False)
sketch12.addGeometry(Part.LineSegment(App.Vector(-4, 4, 0), App.Vector(4, 4, 0)), False)
sketch12.addGeometry(Part.LineSegment(App.Vector(4, 4, 0), App.Vector(4, -4, 0)), False)
sketch12.addConstraint(Sketcher.Constraint("Coincident", 0, 2, 1, 1))
sketch12.addConstraint(Sketcher.Constraint("Coincident", 1, 2, 2, 1))
sketch12.addConstraint(Sketcher.Constraint("Coincident", 2, 2, 3, 1))
sketch12.addConstraint(Sketcher.Constraint("Coincident", 3, 2, 0, 1))
sketch12.addConstraint(Sketcher.Constraint("Coincident", 4, 2, 5, 1))
sketch12.addConstraint(Sketcher.Constraint("Coincident", 5, 2, 6, 1))
sketch12.addConstraint(Sketcher.Constraint("Coincident", 6, 2, 7, 1))
sketch12.addConstraint(Sketcher.Constraint("Coincident", 7, 2, 4, 1))
sketch12.addConstraint(Sketcher.Constraint("Vertical", 0))
sketch12.addConstraint(Sketcher.Constraint("Horizontal", 1))
sketch12.addConstraint(Sketcher.Constraint("Vertical", 2))
sketch12.addConstraint(Sketcher.Constraint("Horizontal", 3))
sketch12.addConstraint(Sketcher.Constraint("Horizontal", 4))
sketch12.addConstraint(Sketcher.Constraint("Vertical", 5))
sketch12.addConstraint(Sketcher.Constraint("Horizontal", 6))
sketch12.addConstraint(Sketcher.Constraint("Vertical", 7))
sketch12.addConstraint(Sketcher.Constraint("Symmetric", 0, 2, 2, 2, -1, 1))
sketch12.addConstraint(Sketcher.Constraint("Symmetric", 4, 2, 6, 2, -1, 1))
sketch12.addConstraint(Sketcher.Constraint("Equal", 3, 0))
sketch12.addConstraint(Sketcher.Constraint("Equal", 6, 5))
sketch12.addConstraint(Sketcher.Constraint("DistanceX", 1, 1, 1, 2, Q("9 mm")))
sketch12.addConstraint(Sketcher.Constraint("DistanceX", 4, 2, 4, 1, Q("7 mm")))
sketch12.setExpression("Constraints[20]", "Params.sketch12_width")
sketch12.setExpression("Constraints[21]", "Params.sketch12_width2")
pocket5 = doc.addObject("PartDesign::Pocket", "Pocket004")
body.addObject(pocket5)
pocket5.Profile = sketch12
pocket5.setExpression("Length", "Params.pocket5_length")

sketch13 = doc.addObject("Sketcher::SketchObject", "Sketch012")
body.addObject(sketch13)
sketch13.AttachmentSupport = (doc.YZ_Plane, [""])
sketch13.MapMode = "FlatFace"
sketch13.AttachmentOffset = App.Placement(App.Vector(0, 0, 3.5), App.Rotation())
sketch13.addGeometry(Part.Circle(App.Vector(0, 33, 0), App.Vector(0, 0, 1), 2.5), False)
sketch13.addConstraint(Sketcher.Constraint("PointOnObject", 0, 3, -2))
sketch13.addConstraint(Sketcher.Constraint("Diameter", 0, Q("5 mm")))
sketch13.addConstraint(Sketcher.Constraint("DistanceY", -1, 1, 0, 3, Q("33 mm")))
sketch13.setExpression("Constraints[1]", "Params.sketch13_diameter")
pocket6 = doc.addObject("PartDesign::Pocket", "Pocket005")
body.addObject(pocket6)
pocket6.Profile = sketch13
pocket6.setExpression("Length", "Params.pocket6_length")

sketch14 = doc.addObject("Sketcher::SketchObject", "Sketch013")
body.addObject(sketch14)
sketch14.AttachmentSupport = (doc.XY_Plane, [""])
sketch14.MapMode = "FlatFace"
sketch14.AttachmentOffset = App.Placement(App.Vector(0, 0, -12), App.Rotation())
sketch14.addGeometry(Part.Circle(App.Vector(0, 0, 0), App.Vector(0, 0, 1), 4), False)
sketch14.addConstraint(Sketcher.Constraint("Coincident", 0, 3, -1, 1))
sketch14.addConstraint(Sketcher.Constraint("Diameter", 0, Q("8 mm")))
sketch14.setExpression("Constraints[1]", "Params.sketch14_diameter")
pad8 = doc.addObject("PartDesign::Pad", "Pad007")
body.addObject(pad8)
pad8.Profile = sketch14
pad8.setExpression("Length", "Params.pad8_length")

doc.recompute()
